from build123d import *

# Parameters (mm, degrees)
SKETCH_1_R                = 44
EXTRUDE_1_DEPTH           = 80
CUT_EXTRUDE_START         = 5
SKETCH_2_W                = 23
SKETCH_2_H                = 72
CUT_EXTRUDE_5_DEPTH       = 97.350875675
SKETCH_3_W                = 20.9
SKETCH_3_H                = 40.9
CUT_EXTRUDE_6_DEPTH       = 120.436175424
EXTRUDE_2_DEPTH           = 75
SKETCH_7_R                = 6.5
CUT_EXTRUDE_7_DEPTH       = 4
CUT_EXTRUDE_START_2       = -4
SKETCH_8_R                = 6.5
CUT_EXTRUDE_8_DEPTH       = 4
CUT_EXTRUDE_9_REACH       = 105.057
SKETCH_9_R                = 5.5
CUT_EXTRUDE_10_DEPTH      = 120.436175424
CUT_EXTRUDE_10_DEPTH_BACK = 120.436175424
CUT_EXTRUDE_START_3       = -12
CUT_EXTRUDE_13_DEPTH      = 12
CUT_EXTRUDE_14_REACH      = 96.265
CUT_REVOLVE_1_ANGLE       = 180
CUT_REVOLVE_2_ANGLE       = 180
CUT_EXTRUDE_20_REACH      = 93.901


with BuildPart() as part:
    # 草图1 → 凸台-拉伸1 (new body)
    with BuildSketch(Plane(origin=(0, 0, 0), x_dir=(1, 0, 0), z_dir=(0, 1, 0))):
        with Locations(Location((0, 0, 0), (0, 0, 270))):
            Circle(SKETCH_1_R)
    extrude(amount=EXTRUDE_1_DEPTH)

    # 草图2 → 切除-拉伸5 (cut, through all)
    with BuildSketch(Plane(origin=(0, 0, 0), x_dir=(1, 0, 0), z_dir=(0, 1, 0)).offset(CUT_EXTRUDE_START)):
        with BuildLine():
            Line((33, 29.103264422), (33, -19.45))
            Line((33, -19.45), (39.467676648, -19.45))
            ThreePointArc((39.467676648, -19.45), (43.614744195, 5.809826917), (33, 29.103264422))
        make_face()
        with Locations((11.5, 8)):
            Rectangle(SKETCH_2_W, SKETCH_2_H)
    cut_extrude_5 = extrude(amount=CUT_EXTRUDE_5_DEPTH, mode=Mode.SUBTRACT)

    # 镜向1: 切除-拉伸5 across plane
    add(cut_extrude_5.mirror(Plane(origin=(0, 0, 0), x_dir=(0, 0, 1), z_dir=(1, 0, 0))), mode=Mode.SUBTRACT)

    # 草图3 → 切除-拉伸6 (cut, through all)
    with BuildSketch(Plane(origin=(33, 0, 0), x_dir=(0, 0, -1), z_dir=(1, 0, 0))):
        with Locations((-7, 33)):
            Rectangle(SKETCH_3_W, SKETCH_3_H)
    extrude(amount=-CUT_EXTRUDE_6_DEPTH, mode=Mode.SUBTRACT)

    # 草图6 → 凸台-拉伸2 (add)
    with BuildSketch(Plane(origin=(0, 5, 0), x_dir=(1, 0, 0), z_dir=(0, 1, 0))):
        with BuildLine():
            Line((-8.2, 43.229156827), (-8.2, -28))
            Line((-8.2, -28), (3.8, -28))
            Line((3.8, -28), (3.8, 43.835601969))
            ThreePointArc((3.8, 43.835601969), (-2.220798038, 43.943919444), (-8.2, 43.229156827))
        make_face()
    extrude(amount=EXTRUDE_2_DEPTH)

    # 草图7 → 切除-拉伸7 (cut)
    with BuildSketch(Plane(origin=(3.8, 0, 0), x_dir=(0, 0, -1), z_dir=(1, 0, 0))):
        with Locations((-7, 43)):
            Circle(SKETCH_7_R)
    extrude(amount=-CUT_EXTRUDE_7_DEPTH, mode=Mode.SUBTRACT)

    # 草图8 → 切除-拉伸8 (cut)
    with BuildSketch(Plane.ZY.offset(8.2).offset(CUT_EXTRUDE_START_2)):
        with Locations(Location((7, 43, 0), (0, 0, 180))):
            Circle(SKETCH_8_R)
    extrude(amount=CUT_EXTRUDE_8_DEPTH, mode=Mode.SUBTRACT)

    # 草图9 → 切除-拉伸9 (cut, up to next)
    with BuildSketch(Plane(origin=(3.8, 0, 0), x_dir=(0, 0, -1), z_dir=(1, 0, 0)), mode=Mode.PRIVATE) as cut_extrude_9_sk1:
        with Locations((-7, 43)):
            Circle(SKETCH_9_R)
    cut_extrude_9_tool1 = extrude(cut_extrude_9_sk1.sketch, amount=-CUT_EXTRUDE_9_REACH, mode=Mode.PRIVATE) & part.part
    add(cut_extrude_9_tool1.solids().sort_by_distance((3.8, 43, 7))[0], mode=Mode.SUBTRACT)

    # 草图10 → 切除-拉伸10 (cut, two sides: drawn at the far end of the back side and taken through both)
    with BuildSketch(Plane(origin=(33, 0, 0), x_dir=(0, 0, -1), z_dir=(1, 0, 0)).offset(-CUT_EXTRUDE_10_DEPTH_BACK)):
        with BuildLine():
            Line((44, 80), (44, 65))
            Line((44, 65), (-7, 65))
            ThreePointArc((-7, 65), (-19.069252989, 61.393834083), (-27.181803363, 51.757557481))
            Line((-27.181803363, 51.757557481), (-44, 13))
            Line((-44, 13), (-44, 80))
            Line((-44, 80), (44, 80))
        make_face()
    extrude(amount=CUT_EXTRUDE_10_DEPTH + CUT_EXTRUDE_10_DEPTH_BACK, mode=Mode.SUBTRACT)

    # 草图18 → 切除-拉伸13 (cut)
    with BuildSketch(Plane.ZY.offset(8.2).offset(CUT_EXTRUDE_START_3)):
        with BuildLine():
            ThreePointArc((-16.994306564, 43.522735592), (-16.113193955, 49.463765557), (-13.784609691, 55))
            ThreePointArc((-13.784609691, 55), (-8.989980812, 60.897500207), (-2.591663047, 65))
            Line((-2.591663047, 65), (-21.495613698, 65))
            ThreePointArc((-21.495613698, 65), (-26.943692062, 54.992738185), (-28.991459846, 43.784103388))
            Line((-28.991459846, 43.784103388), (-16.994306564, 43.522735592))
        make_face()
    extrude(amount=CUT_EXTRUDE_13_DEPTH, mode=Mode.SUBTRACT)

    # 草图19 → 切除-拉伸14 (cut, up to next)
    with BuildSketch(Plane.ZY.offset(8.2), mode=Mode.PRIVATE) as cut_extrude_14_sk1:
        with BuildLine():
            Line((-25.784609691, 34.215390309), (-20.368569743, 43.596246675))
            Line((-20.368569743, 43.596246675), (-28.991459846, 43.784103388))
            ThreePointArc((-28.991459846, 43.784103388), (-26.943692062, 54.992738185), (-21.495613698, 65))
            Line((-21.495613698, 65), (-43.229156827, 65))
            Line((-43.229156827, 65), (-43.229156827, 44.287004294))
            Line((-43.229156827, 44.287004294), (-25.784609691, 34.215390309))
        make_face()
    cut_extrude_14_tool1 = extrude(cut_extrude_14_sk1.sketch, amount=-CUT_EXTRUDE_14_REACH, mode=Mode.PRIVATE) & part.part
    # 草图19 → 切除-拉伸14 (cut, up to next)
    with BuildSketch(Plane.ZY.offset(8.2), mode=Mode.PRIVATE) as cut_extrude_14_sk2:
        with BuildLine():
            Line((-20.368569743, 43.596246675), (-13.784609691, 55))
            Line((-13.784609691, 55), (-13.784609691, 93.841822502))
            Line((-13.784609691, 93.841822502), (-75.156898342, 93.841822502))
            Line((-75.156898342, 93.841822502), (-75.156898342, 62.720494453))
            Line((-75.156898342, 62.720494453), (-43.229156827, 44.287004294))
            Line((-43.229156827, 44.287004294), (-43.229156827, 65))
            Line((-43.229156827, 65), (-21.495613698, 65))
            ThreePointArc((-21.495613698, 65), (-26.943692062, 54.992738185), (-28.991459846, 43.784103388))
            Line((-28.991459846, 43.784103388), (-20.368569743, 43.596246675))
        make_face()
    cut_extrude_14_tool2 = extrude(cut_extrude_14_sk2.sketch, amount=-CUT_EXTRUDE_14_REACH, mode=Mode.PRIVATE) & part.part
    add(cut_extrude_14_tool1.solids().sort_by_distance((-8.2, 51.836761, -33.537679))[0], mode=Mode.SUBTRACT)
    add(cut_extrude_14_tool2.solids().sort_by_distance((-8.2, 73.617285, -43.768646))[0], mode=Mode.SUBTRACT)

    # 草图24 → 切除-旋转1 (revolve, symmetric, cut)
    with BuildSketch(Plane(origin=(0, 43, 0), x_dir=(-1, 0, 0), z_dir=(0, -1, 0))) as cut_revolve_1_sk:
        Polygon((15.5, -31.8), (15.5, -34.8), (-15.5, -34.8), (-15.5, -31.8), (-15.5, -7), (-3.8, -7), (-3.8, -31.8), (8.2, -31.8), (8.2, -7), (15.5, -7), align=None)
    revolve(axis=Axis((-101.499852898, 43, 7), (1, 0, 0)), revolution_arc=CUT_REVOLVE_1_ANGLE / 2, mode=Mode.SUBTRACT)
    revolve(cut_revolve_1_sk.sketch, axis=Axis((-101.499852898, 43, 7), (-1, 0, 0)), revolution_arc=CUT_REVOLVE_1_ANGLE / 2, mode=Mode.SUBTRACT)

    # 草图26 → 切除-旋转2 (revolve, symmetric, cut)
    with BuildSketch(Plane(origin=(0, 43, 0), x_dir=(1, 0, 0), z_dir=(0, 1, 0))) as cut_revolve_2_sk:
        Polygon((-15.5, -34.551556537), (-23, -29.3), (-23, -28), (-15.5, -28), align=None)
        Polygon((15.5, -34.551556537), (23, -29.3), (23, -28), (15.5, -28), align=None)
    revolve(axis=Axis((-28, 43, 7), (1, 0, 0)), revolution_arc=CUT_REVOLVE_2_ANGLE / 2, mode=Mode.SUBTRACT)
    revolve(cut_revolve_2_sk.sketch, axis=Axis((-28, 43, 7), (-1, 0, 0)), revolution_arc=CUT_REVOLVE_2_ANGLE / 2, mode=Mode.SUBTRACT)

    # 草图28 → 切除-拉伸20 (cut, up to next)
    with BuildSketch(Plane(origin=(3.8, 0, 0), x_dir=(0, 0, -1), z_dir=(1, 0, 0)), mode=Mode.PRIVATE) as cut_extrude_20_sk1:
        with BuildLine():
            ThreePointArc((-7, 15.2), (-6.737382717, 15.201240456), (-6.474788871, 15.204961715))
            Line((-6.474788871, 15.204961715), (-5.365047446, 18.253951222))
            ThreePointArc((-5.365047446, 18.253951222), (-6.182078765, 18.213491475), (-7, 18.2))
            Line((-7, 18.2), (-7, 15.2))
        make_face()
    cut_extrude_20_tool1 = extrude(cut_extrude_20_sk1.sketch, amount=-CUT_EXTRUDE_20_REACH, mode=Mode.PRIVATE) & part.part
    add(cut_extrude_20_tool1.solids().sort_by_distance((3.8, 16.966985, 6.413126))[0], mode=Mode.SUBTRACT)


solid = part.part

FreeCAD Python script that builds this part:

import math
import FreeCAD as App
import Part
import Sketcher
Q = App.Units.Quantity

doc = App.newDocument("Part")
body = doc.addObject("PartDesign::Body", "Body")

# Sketch on XZ plane
sketch1 = body.newObject("Sketcher::SketchObject", "Sketch")
sketch1.AttachmentSupport = (doc.getObject("XZ_Plane"), [""])
sketch1.MapMode = "FlatFace"
sketch1.addGeometry(Part.Circle(App.Vector(0, 0, 0), App.Vector(0, 0, 1), 44), False)
sketch1.addConstraint([
    Sketcher.Constraint("Coincident", 0, 3, -1, 1),
    Sketcher.Constraint("Diameter", 0, 88.0),
])
pad1 = body.newObject("PartDesign::Pad", "Pad")
pad1.Profile = sketch1
pad1.Length = 80
pad1.Reversed = True

# Sketch on XZ plane
sketch2 = body.newObject("Sketcher::SketchObject", "Sketch001")
sketch2.AttachmentSupport = (doc.getObject("XZ_Plane"), [""])
sketch2.MapMode = "FlatFace"
sketch2.AttachmentOffset = App.Placement(App.Vector(0, 0, -5), App.Rotation())
sketch2.addGeometry([
    Part.LineSegment(App.Vector(33, -29.103264, 0), App.Vector(33, 19.45, 0)),  # 0
    Part.LineSegment(App.Vector(33, 19.45, 0), App.Vector(39.467677, 19.45, 0)),  # 1
    Part.ArcOfCircle(Part.Circle(App.Vector(0, 0, 0), App.Vector(0, 0, 1), 44), math.radians(-41.409622), math.radians(26.234462)),  # 2
    Part.LineSegment(App.Vector(0, -44, 0), App.Vector(0, 28, 0)),  # 3
    Part.LineSegment(App.Vector(0, 28, 0), App.Vector(23, 28, 0)),  # 4
    Part.LineSegment(App.Vector(23, 28, 0), App.Vector(23, -44, 0)),  # 5
    Part.LineSegment(App.Vector(23, -44, 0), App.Vector(0, -44, 0)),  # 6
], False)
sketch2.addConstraint([
    Sketcher.Constraint("Coincident", 0, 2, 1, 1),
    Sketcher.Constraint("Coincident", 1, 2, 2, 2),
    Sketcher.Constraint("Coincident", 2, 1, 0, 1),
    Sketcher.Constraint("Coincident", 3, 2, 4, 1),
    Sketcher.Constraint("Coincident", 4, 2, 5, 1),
    Sketcher.Constraint("Coincident", 5, 2, 6, 1),
    Sketcher.Constraint("Coincident", 6, 2, 3, 1),
    Sketcher.Constraint("Vertical", 0),
    Sketcher.Constraint("Horizontal", 1),
    Sketcher.Constraint("Vertical", 3),
    Sketcher.Constraint("Horizontal", 4),
    Sketcher.Constraint("Vertical", 5),
    Sketcher.Constraint("Horizontal", 6),
    Sketcher.Constraint("Coincident", 2, 3, -1, 1),
    Sketcher.Constraint("PointOnObject", 3, 2, -2),
    Sketcher.Constraint("Radius", 2, 44.0),
    Sketcher.Constraint("DistanceX", 4, 1, 4, 2, 23.0),
    Sketcher.Constraint("DistanceY", 3, 1, 3, 2, 72.0),
    Sketcher.Constraint("DistanceX", -1, 1, 0, 2, 33.0),
    Sketcher.Constraint("DistanceY", -1, 1, 3, 2, 28.0),
    Sketcher.Constraint("DistanceY", -1, 1, 0, 2, 19.45),
])
pocket1 = body.newObject("PartDesign::Pocket", "Pocket")
pocket1.Profile = sketch2
pocket1.Type = "ThroughAll"
doc.recompute()

mirrored = body.newObject("PartDesign::Mirrored", "Mirrored")
mirrored.Originals = [pocket1]
mirrored.MirrorPlane = (doc.getObject("YZ_Plane"), [""])
body.Tip = mirrored

# Sketch on YZ plane
sketch3 = body.newObject("Sketcher::SketchObject", "Sketch002")
sketch3.AttachmentSupport = (doc.getObject("YZ_Plane"), [""])
sketch3.MapMode = "FlatFace"
sketch3.AttachmentOffset = App.Placement(App.Vector(0, 0, 33), App.Rotation())
sketch3.addGeometry([
    Part.LineSegment(App.Vector(53.45, 17.45, 0), App.Vector(12.55, 17.45, 0)),
    Part.LineSegment(App.Vector(12.55, 17.45, 0), App.Vector(12.55, -3.45, 0)),
    Part.LineSegment(App.Vector(12.55, -3.45, 0), App.Vector(53.45, -3.45, 0)),
    Part.LineSegment(App.Vector(53.45, -3.45, 0), App.Vector(53.45, 17.45, 0)),
], False)
sketch3.addConstraint([
    Sketcher.Constraint("Coincident", 0, 2, 1, 1),
    Sketcher.Constraint("Coincident", 1, 2, 2, 1),
    Sketcher.Constraint("Coincident", 2, 2, 3, 1),
    Sketcher.Constraint("Coincident", 3, 2, 0, 1),
    Sketcher.Constraint("Horizontal", 0),
    Sketcher.Constraint("Vertical", 1),
    Sketcher.Constraint("Horizontal", 2),
    Sketcher.Constraint("Vertical", 3),
    Sketcher.Constraint("DistanceX", 0, 2, 0, 1, 40.9),
    Sketcher.Constraint("DistanceY", 1, 2, 1, 1, 20.9),
    Sketcher.Constraint("DistanceX", -1, 1, 0, 2, 12.55),
    Sketcher.Constraint("DistanceY", -1, 1, 0, 2, 17.45),
])
pocket2 = body.newObject("PartDesign::Pocket", "Pocket001")
pocket2.Profile = sketch3
pocket2.Type = "ThroughAll"

# Sketch on XZ plane
sketch4 = body.newObject("Sketcher::SketchObject", "Sketch003")
sketch4.AttachmentSupport = (doc.getObject("XZ_Plane"), [""])
sketch4.MapMode = "FlatFace"
sketch4.AttachmentOffset = App.Placement(App.Vector(0, 0, -5), App.Rotation())
sketch4.addGeometry([
    Part.LineSegment(App.Vector(-8.2, -43.229157, 0), App.Vector(-8.2, 28, 0)),
    Part.LineSegment(App.Vector(-8.2, 28, 0), App.Vector(3.8, 28, 0)),
    Part.LineSegment(App.Vector(3.8, 28, 0), App.Vector(3.8, -43.835602, 0)),
    Part.ArcOfCircle(Part.Circle(App.Vector(0, 0, 0), App.Vector(0, 0, 1), 44), math.radians(-100.740646), math.radians(-85.045556)),
], False)
sketch4.addConstraint([
    Sketcher.Constraint("Coincident", 0, 2, 1, 1),
    Sketcher.Constraint("Coincident", 1, 2, 2, 1),
    Sketcher.Constraint("Coincident", 2, 2, 3, 2),
    Sketcher.Constraint("Coincident", 3, 1, 0, 1),
    Sketcher.Constraint("Vertical", 0),
    Sketcher.Constraint("Horizontal", 1),
    Sketcher.Constraint("Vertical", 2),
    Sketcher.Constraint("Coincident", 3, 3, -1, 1),
    Sketcher.Constraint("Radius", 3, 44.0),
    Sketcher.Constraint("DistanceX", 1, 1, 1, 2, 12.0),
    Sketcher.Constraint("DistanceY", -1, 1, 0, 2, 28.0),
    Sketcher.Constraint("DistanceX", 0, 2, -1, 1, 8.2),
])
pad2 = body.newObject("PartDesign::Pad", "Pad001")
pad2.Profile = sketch4
pad2.Length = 75
pad2.Reversed = True

# Sketch on YZ plane
sketch5 = body.newObject("Sketcher::SketchObject", "Sketch004")
sketch5.AttachmentSupport = (doc.getObject("YZ_Plane"), [""])
sketch5.MapMode = "FlatFace"
sketch5.AttachmentOffset = App.Placement(App.Vector(0, 0, 3.8), App.Rotation())
sketch5.addGeometry(Part.Circle(App.Vector(43, 7, 0), App.Vector(0, 0, 1), 6.5), False)
sketch5.addConstraint([
    Sketcher.Constraint("Diameter", 0, 13.0),
    Sketcher.Constraint("DistanceX", -1, 1, 0, 3, 43.0),
    Sketcher.Constraint("DistanceY", -1, 1, 0, 3, 7.0),
])
pocket3 = body.newObject("PartDesign::Pocket", "Pocket002")
pocket3.Profile = sketch5
pocket3.Length = 4

# Sketch on YZ plane
sketch6 = body.newObject("Sketcher::SketchObject", "Sketch005")
sketch6.AttachmentSupport = (doc.getObject("YZ_Plane"), [""])
sketch6.MapMode = "FlatFace"
sketch6.AttachmentOffset = App.Placement(App.Vector(0, 0, -4.2), App.Rotation())
sketch6.addGeometry(Part.Circle(App.Vector(43, 7, 0), App.Vector(0, 0, 1), 6.5), False)
sketch6.addConstraint([
    Sketcher.Constraint("Diameter", 0, 13.0),
    Sketcher.Constraint("DistanceX", -1, 1, 0, 3, 43.0),
    Sketcher.Constraint("DistanceY", -1, 1, 0, 3, 7.0),
])
pocket4 = body.newObject("PartDesign::Pocket", "Pocket003")
pocket4.Profile = sketch6
pocket4.Length = 4

# Sketch on YZ plane
sketch7 = body.newObject("Sketcher::SketchObject", "Sketch006")
sketch7.AttachmentSupport = (doc.getObject("YZ_Plane"), [""])
sketch7.MapMode = "FlatFace"
sketch7.AttachmentOffset = App.Placement(App.Vector(0, 0, 3.8), App.Rotation())
sketch7.addGeometry(Part.Circle(App.Vector(43, 7, 0), App.Vector(0, 0, 1), 5.5), False)
sketch7.addConstraint([
    Sketcher.Constraint("Diameter", 0, 11.0),
    Sketcher.Constraint("DistanceX", -1, 1, 0, 3, 43.0),
    Sketcher.Constraint("DistanceY", -1, 1, 0, 3, 7.0),
])
pocket5 = body.newObject("PartDesign::Pocket", "Pocket004")
pocket5.Profile = sketch7
pocket5.Length = 8

# Sketch on YZ plane
sketch8 = body.newObject("Sketcher::SketchObject", "Sketch007")
sketch8.AttachmentSupport = (doc.getObject("YZ_Plane"), [""])
sketch8.MapMode = "FlatFace"
sketch8.AttachmentOffset = App.Placement(App.Vector(0, 0, 33), App.Rotation())
sketch8.addGeometry([
    Part.LineSegment(App.Vector(65, -44, 0), App.Vector(80, -44, 0)),  # 0
    Part.LineSegment(App.Vector(80, -44, 0), App.Vector(80, 44, 0)),  # 1
    Part.LineSegment(App.Vector(80, 44, 0), App.Vector(13, 44, 0)),  # 2
    Part.LineSegment(App.Vector(13, 44, 0), App.Vector(51.757557, 27.181803, 0)),  # 3
    Part.ArcOfCircle(Part.Circle(App.Vector(43, 7, 0), App.Vector(0, 0, 1), 22), math.radians(0), math.radians(66.54237)),  # 4
    Part.LineSegment(App.Vector(65, 7, 0), App.Vector(65, -44, 0)),  # 5
], False)
sketch8.addConstraint([
    Sketcher.Constraint("Coincident", 0, 2, 1, 1),
    Sketcher.Constraint("Coincident", 1, 2, 2, 1),
    Sketcher.Constraint("Coincident", 2, 2, 3, 1),
    Sketcher.Constraint("Tangent", 3, 2, 4, 2),
    Sketcher.Constraint("Tangent", 4, 1, 5, 1),
    Sketcher.Constraint("Coincident", 5, 2, 0, 1),
    Sketcher.Constraint("Horizontal", 0),
    Sketcher.Constraint("Vertical", 1),
    Sketcher.Constraint("Horizontal", 2),
    Sketcher.Constraint("Vertical", 5),
    Sketcher.Constraint("Radius", 4, 22.0),
    Sketcher.Constraint("DistanceX", 0, 1, 0, 2, 15.0),
    Sketcher.Constraint("DistanceX", 2, 2, 2, 1, 67.0),
    Sketcher.Constraint("DistanceY", 1, 1, 1, 2, 88.0),
    Sketcher.Constraint("DistanceY", 5, 2, 5, 1, 51.0),
    Sketcher.Constraint("DistanceX", -1, 1, 4, 3, 43.0),
    Sketcher.Constraint("DistanceY", -1, 1, 4, 3, 7.0),
])
pocket6 = body.newObject("PartDesign::Pocket", "Pocket005")
pocket6.Profile = sketch8
pocket6.Type = "ThroughAll"
pocket6.Midplane = True

# Sketch on YZ plane
sketch9 = body.newObject("Sketcher::SketchObject", "Sketch008")
sketch9.AttachmentSupport = (doc.getObject("YZ_Plane"), [""])
sketch9.MapMode = "FlatFace"
sketch9.AttachmentOffset = App.Placement(App.Vector(0, 0, 3.8), App.Rotation())
sketch9.addGeometry([
    Part.ArcOfCircle(Part.Circle(App.Vector(43, 7, 0), App.Vector(0, 0, 1), 24), math.radians(-88.751962), math.radians(-60)),  # 0
    Part.ArcOfCircle(Part.Circle(App.Vector(43, 7, 0), App.Vector(0, 0, 1), 24), math.radians(-60), math.radians(-23.556464)),  # 1
    Part.LineSegment(App.Vector(65, -2.591663, 0), App.Vector(65, -21.495614, 0)),  # 2
    Part.ArcOfCircle(Part.Circle(App.Vector(43, 7, 0), App.Vector(0, 0, 1), 36), math.radians(-88.751962), math.radians(-52.330113)),  # 3
    Part.LineSegment(App.Vector(43.784103, -28.99146, 0), App.Vector(43.522736, -16.994307, 0)),  # 4
], False)
sketch9.addConstraint([
    Sketcher.Constraint("Tangent", 0, 2, 1, 1),
    Sketcher.Constraint("Coincident", 1, 2, 2, 1),
    Sketcher.Constraint("Coincident", 2, 2, 3, 2),
    Sketcher.Constraint("Coincident", 3, 1, 4, 1),
    Sketcher.Constraint("Coincident", 4, 2, 0, 1),
    Sketcher.Constraint("Vertical", 2),
    Sketcher.Constraint("Coincident", 3, 3, 0, 3),
    Sketcher.Constraint("Equal", 0, 1),
    Sketcher.Constraint("Radius", 0, 24.0),
    Sketcher.Constraint("Radius", 3, 36.0),
    Sketcher.Constraint("DistanceX", -1, 1, 0, 3, 43.0),
    Sketcher.Constraint("DistanceY", -1, 1, 0, 3, 7.0),
    Sketcher.Constraint("DistanceX", -1, 1, 0, 2, 55.0),
    Sketcher.Constraint("DistanceX", -1, 1, 1, 2, 65.0),
    Sketcher.Constraint("DistanceY", 3, 1, -1, 1, 28.99146),
    Sketcher.Constraint("DistanceX", -1, 1, 4, 2, 43.522736),
])
pocket7 = body.newObject("PartDesign::Pocket", "Pocket006")
pocket7.Profile = sketch9
pocket7.Length = 12

# Sketch on YZ plane
sketch10 = body.newObject("Sketcher::SketchObject", "Sketch009")
sketch10.AttachmentSupport = (doc.getObject("YZ_Plane"), [""])
sketch10.MapMode = "FlatFace"
sketch10.AttachmentOffset = App.Placement(App.Vector(0, 0, -8.2), App.Rotation())
sketch10.addGeometry([
    Part.LineSegment(App.Vector(34.21539, -25.78461, 0), App.Vector(43.596247, -20.36857, 0)),  # 0
    Part.LineSegment(App.Vector(43.596247, -20.36857, 0), App.Vector(43.784103, -28.99146, 0)),  # 1
    Part.ArcOfCircle(Part.Circle(App.Vector(43, 7, 0), App.Vector(0, 0, 1), 36), math.radians(-88.751962), math.radians(-52.330113)),  # 2
    Part.LineSegment(App.Vector(65, -21.495614, 0), App.Vector(65, -43.229157, 0)),  # 3
    Part.LineSegment(App.Vector(65, -43.229157, 0), App.Vector(44.287004, -43.229157, 0)),  # 4
    Part.LineSegment(App.Vector(44.287004, -43.229157, 0), App.Vector(34.21539, -25.78461, 0)),  # 5
], False)
sketch10.addConstraint([
    Sketcher.Constraint("Coincident", 0, 2, 1, 1),
    Sketcher.Constraint("Coincident", 1, 2, 2, 1),
    Sketcher.Constraint("Coincident", 2, 2, 3, 1),
    Sketcher.Constraint("Coincident", 3, 2, 4, 1),
    Sketcher.Constraint("Coincident", 4, 2, 5, 1),
    Sketcher.Constraint("Coincident", 5, 2, 0, 1),
    Sketcher.Constraint("Vertical", 3),
    Sketcher.Constraint("Horizontal", 4),
    Sketcher.Constraint("Perpendicular", 0, 5),
    Sketcher.Constraint("Radius", 2, 36.0),
    Sketcher.Constraint("Angle", 0, Q("30 deg")),
    Sketcher.Constraint("DistanceX", -1, 1, 2, 3, 43.0),
    Sketcher.Constraint("DistanceY", -1, 1, 2, 3, 7.0),
    Sketcher.Constraint("DistanceX", -1, 1, 2, 2, 65.0),
    Sketcher.Constraint("DistanceX", 1, 2, 4, 2, 0.502901),
    Sketcher.Constraint("Distance", 0, 10.83208),
    Sketcher.Constraint("DistanceX", 4, 2, 4, 1, 20.712996),
    Sketcher.Constraint("DistanceY", 3, 2, 3, 1, 21.733543),
    Sketcher.Constraint("DistanceY", 0, 2, -1, 1, 20.36857),
])
pocket8 = body.newObject("PartDesign::Pocket", "Pocket007")
pocket8.Profile = sketch10
pocket8.Type = "UpToFirst"
pocket8.Reversed = True

# Sketch on YZ plane
sketch11 = body.newObject("Sketcher::SketchObject", "Sketch010")
sketch11.AttachmentSupport = (doc.getObject("YZ_Plane"), [""])
sketch11.MapMode = "FlatFace"
sketch11.AttachmentOffset = App.Placement(App.Vector(0, 0, -8.2), App.Rotation())
sketch11.addGeometry([
    Part.LineSegment(App.Vector(43.596247, -20.36857, 0), App.Vector(55, -13.78461, 0)),  # 0
    Part.LineSegment(App.Vector(55, -13.78461, 0), App.Vector(93.841823, -13.78461, 0)),  # 1
    Part.LineSegment(App.Vector(93.841823, -13.78461, 0), App.Vector(93.841823, -75.156898, 0)),  # 2
    Part.LineSegment(App.Vector(93.841823, -75.156898, 0), App.Vector(62.720494, -75.156898, 0)),  # 3
    Part.LineSegment(App.Vector(62.720494, -75.156898, 0), App.Vector(44.287004, -43.229157, 0)),  # 4
    Part.LineSegment(App.Vector(44.287004, -43.229157, 0), App.Vector(65, -43.229157, 0)),  # 5
    Part.LineSegment(App.Vector(65, -43.229157, 0), App.Vector(65, -21.495614, 0)),  # 6
    Part.ArcOfCircle(Part.Circle(App.Vector(43, 7, 0), App.Vector(0, 0, 1), 36), math.radians(-88.751962), math.radians(-52.330113)),  # 7
    Part.LineSegment(App.Vector(43.784103, -28.99146, 0), App.Vector(43.596247, -20.36857, 0)),  # 8
], False)
sketch11.addConstraint([
    Sketcher.Constraint("Coincident", 0, 2, 1, 1),
    Sketcher.Constraint("Coincident", 1, 2, 2, 1),
    Sketcher.Constraint("Coincident", 2, 2, 3, 1),
    Sketcher.Constraint("Coincident", 3, 2, 4, 1),
    Sketcher.Constraint("Coincident", 4, 2, 5, 1),
    Sketcher.Constraint("Coincident", 5, 2, 6, 1),
    Sketcher.Constraint("Coincident", 6, 2, 7, 2),
    Sketcher.Constraint("Coincident", 7, 1, 8, 1),
    Sketcher.Constraint("Coincident", 8, 2, 0, 1),
    Sketcher.Constraint("Horizontal", 1),
    Sketcher.Constraint("Vertical", 2),
    Sketcher.Constraint("Horizontal", 3),
    Sketcher.Constraint("Horizontal", 5),
    Sketcher.Constraint("Vertical", 6),
    Sketcher.Constraint("Perpendicular", 0, 4),
    Sketcher.Constraint("Radius", 7, 36.0),
    Sketcher.Constraint("Angle", 0, Q("30 deg")),
    Sketcher.Constraint("DistanceX", -1, 1, 7, 3, 43.0),
    Sketcher.Constraint("DistanceY", -1, 1, 7, 3, 7.0),
    Sketcher.Constraint("DistanceX", -1, 1, 0, 2, 55.0),
    Sketcher.Constraint("DistanceX", -1, 1, 5, 2, 65.0),
    Sketcher.Constraint("DistanceX", 3, 2, 3, 1, 31.121328),
    Sketcher.Constraint("DistanceY", 2, 2, 2, 1, 61.372289),
    Sketcher.Constraint("DistanceY", 2, 2, -1, 1, 75.156898),
    Sketcher.Constraint("DistanceX", 7, 1, 4, 2, 0.502901),
    Sketcher.Constraint("Distance", 0, 13.16792),
    Sketcher.Constraint("Distance", 4, 36.86698),
    Sketcher.Constraint("DistanceX", 1, 1, 1, 2, 38.841823),
])
pocket9 = body.newObject("PartDesign::Pocket", "Pocket008")
pocket9.Profile = sketch11
pocket9.Length = 12
pocket9.Reversed = True

# Sketch on XZ plane
sketch12 = body.newObject("Sketcher::SketchObject", "Sketch011")
sketch12.AttachmentSupport = (doc.getObject("XZ_Plane"), [""])
sketch12.MapMode = "FlatFace"
sketch12.AttachmentOffset = App.Placement(App.Vector(0, 0, -43), App.Rotation())
sketch12.addGeometry([
    Part.LineSegment(App.Vector(-15.5, 34.8, 0), App.Vector(-15.5, 7, 0)),  # 0
    Part.LineSegment(App.Vector(-15.5, 7, 0), App.Vector(-8.2, 7, 0)),  # 1
    Part.LineSegment(App.Vector(-8.2, 7, 0), App.Vector(-8.2, 31.8, 0)),  # 2
    Part.LineSegment(App.Vector(-8.2, 31.8, 0), App.Vector(3.8, 31.8, 0)),  # 3
    Part.LineSegment(App.Vector(3.8, 31.8, 0), App.Vector(3.8, 7, 0)),  # 4
    Part.LineSegment(App.Vector(3.8, 7, 0), App.Vector(15.5, 7, 0)),  # 5
    Part.LineSegment(App.Vector(15.5, 7, 0), App.Vector(15.5, 34.8, 0)),  # 6
    Part.LineSegment(App.Vector(15.5, 34.8, 0), App.Vector(-15.5, 34.8, 0)),  # 7
], False)
sketch12.addGeometry(Part.LineSegment(App.Vector(-15.5, 7, 0), App.Vector(15.5, 7, 0)), True)  # axis
sketch12.addConstraint([
    Sketcher.Constraint("Coincident", 0, 2, 1, 1),
    Sketcher.Constraint("Coincident", 1, 2, 2, 1),
    Sketcher.Constraint("Coincident", 2, 2, 3, 1),
    Sketcher.Constraint("Coincident", 3, 2, 4, 1),
    Sketcher.Constraint("Coincident", 4, 2, 5, 1),
    Sketcher.Constraint("Coincident", 5, 2, 6, 1),
    Sketcher.Constraint("Coincident", 6, 2, 7, 1),
    Sketcher.Constraint("Coincident", 7, 2, 0, 1),
    Sketcher.Constraint("Vertical", 0),
    Sketcher.Constraint("Horizontal", 1),
    Sketcher.Constraint("Vertical", 2),
    Sketcher.Constraint("Horizontal", 3),
    Sketcher.Constraint("Vertical", 4),
    Sketcher.Constraint("Horizontal", 5),
    Sketcher.Constraint("Vertical", 6),
    Sketcher.Constraint("Horizontal", 7),
    Sketcher.Constraint("Horizontal", 8),
    Sketcher.Constraint("Coincident", 8, 1, 0, 2),
    Sketcher.Constraint("Coincident", 8, 2, 5, 2),
    Sketcher.Constraint("DistanceX", 3, 1, 3, 2, 12.0),
    Sketcher.Constraint("DistanceX", 7, 2, 7, 1, 31.0),
    Sketcher.Constraint("DistanceX", 1, 1, 1, 2, 7.3),
    Sketcher.Constraint("DistanceY", 0, 2, 0, 1, 27.8),
    Sketcher.Constraint("DistanceY", 2, 1, 2, 2, 24.8),
    Sketcher.Constraint("DistanceY", -1, 1, 0, 2, 7.0),
    Sketcher.Constraint("DistanceX", 0, 2, -1, 1, 15.5),
])
groove = body.newObject("PartDesign::Groove", "Groove")
groove.Profile = sketch12
groove.ReferenceAxis = (sketch12, ["Axis0"])
groove.Angle = 90

# Sketch on XZ plane
sketch13 = body.newObject("Sketcher::SketchObject", "Sketch012")
sketch13.AttachmentSupport = (doc.getObject("XZ_Plane"), [""])
sketch13.MapMode = "FlatFace"
sketch13.AttachmentOffset = App.Placement(App.Vector(0, 0, -43), App.Rotation())
sketch13.addGeometry([
    Part.LineSegment(App.Vector(-15.5, 34.8, 0), App.Vector(-15.5, 7, 0)),  # 0
    Part.LineSegment(App.Vector(-15.5, 7, 0), App.Vector(-8.2, 7, 0)),  # 1
    Part.LineSegment(App.Vector(-8.2, 7, 0), App.Vector(-8.2, 31.8, 0)),  # 2
    Part.LineSegment(App.Vector(-8.2, 31.8, 0), App.Vector(3.8, 31.8, 0)),  # 3
    Part.LineSegment(App.Vector(3.8, 31.8, 0), App.Vector(3.8, 7, 0)),  # 4
    Part.LineSegment(App.Vector(3.8, 7, 0), App.Vector(15.5, 7, 0)),  # 5
    Part.LineSegment(App.Vector(15.5, 7, 0), App.Vector(15.5, 34.8, 0)),  # 6
    Part.LineSegment(App.Vector(15.5, 34.8, 0), App.Vector(-15.5, 34.8, 0)),  # 7
], False)
sketch13.addGeometry(Part.LineSegment(App.Vector(15.5, 7, 0), App.Vector(-15.5, 7, 0)), True)  # axis
sketch13.addConstraint([
    Sketcher.Constraint("Coincident", 0, 2, 1, 1),
    Sketcher.Constraint("Coincident", 1, 2, 2, 1),
    Sketcher.Constraint("Coincident", 2, 2, 3, 1),
    Sketcher.Constraint("Coincident", 3, 2, 4, 1),
    Sketcher.Constraint("Coincident", 4, 2, 5, 1),
    Sketcher.Constraint("Coincident", 5, 2, 6, 1),
    Sketcher.Constraint("Coincident", 6, 2, 7, 1),
    Sketcher.Constraint("Coincident", 7, 2, 0, 1),
    Sketcher.Constraint("Vertical", 0),
    Sketcher.Constraint("Horizontal", 1),
    Sketcher.Constraint("Vertical", 2),
    Sketcher.Constraint("Horizontal", 3),
    Sketcher.Constraint("Vertical", 4),
    Sketcher.Constraint("Horizontal", 5),
    Sketcher.Constraint("Vertical", 6),
    Sketcher.Constraint("Horizontal", 7),
    Sketcher.Constraint("Horizontal", 8),
    Sketcher.Constraint("Coincident", 8, 1, 5, 2),
    Sketcher.Constraint("Coincident", 8, 2, 0, 2),
    Sketcher.Constraint("DistanceX", 3, 1, 3, 2, 12.0),
    Sketcher.Constraint("DistanceX", 7, 2, 7, 1, 31.0),
    Sketcher.Constraint("DistanceX", 1, 1, 1, 2, 7.3),
    Sketcher.Constraint("DistanceY", 0, 2, 0, 1, 27.8),
    Sketcher.Constraint("DistanceY", 2, 1, 2, 2, 24.8),
    Sketcher.Constraint("DistanceY", -1, 1, 0, 2, 7.0),
    Sketcher.Constraint("DistanceX", 0, 2, -1, 1, 15.5),
])
groove2 = body.newObject("PartDesign::Groove", "Groove001")
groove2.Profile = sketch13
groove2.ReferenceAxis = (sketch13, ["Axis0"])
groove2.Angle = 90

# Sketch on XZ plane
sketch14 = body.newObject("Sketcher::SketchObject", "Sketch013")
sketch14.AttachmentSupport = (doc.getObject("XZ_Plane"), [""])
sketch14.MapMode = "FlatFace"
sketch14.AttachmentOffset = App.Placement(App.Vector(0, 0, -43), App.Rotation())
sketch14.addGeometry([
    Part.LineSegment(App.Vector(-23, 29.3, 0), App.Vector(-15.5, 34.551557, 0)),  # 0
    Part.LineSegment(App.Vector(-15.5, 34.551557, 0), App.Vector(-15.5, 28, 0)),  # 1
    Part.LineSegment(App.Vector(-15.5, 28, 0), App.Vector(-23, 28, 0)),  # 2
    Part.LineSegment(App.Vector(-23, 28, 0), App.Vector(-23, 29.3, 0)),  # 3
    Part.LineSegment(App.Vector(15.5, 34.551557, 0), App.Vector(23, 29.3, 0)),  # 4
    Part.LineSegment(App.Vector(23, 29.3, 0), App.Vector(23, 28, 0)),  # 5
    Part.LineSegment(App.Vector(23, 28, 0), App.Vector(15.5, 28, 0)),  # 6
    Part.LineSegment(App.Vector(15.5, 28, 0), App.Vector(15.5, 34.551557, 0)),  # 7
], False)
sketch14.addGeometry(Part.LineSegment(App.Vector(-23, 7, 0), App.Vector(23, 7, 0)), True)  # axis
sketch14.addConstraint([
    Sketcher.Constraint("Coincident", 0, 2, 1, 1),
    Sketcher.Constraint("Coincident", 1, 2, 2, 1),
    Sketcher.Constraint("Coincident", 2, 2, 3, 1),
    Sketcher.Constraint("Coincident", 3, 2, 0, 1),
    Sketcher.Constraint("Coincident", 4, 2, 5, 1),
    Sketcher.Constraint("Coincident", 5, 2, 6, 1),
    Sketcher.Constraint("Coincident", 6, 2, 7, 1),
    Sketcher.Constraint("Coincident", 7, 2, 4, 1),
    Sketcher.Constraint("Vertical", 1),
    Sketcher.Constraint("Horizontal", 2),
    Sketcher.Constraint("Vertical", 3),
    Sketcher.Constraint("Vertical", 5),
    Sketcher.Constraint("Horizontal", 6),
    Sketcher.Constraint("Vertical", 7),
    Sketcher.Constraint("Horizontal", 8),
    Sketcher.Constraint("Symmetric", 3, 2, 4, 2, -2),
    Sketcher.Constraint("Symmetric", 1, 2, 6, 2, -2),
    Sketcher.Constraint("Horizontal", 0, 2, 7, 2),
    Sketcher.Constraint("Vertical", 3, 2, 8, 1),
    Sketcher.Constraint("Vertical", 5, 2, 8, 2),
    Sketcher.Constraint("DistanceX", 8, 1, 8, 2, 46.0),
    Sketcher.Constraint("Angle", 0, Q("35 deg")),
    Sketcher.Constraint("DistanceX", 2, 2, 2, 1, 7.5),
    Sketcher.Constraint("DistanceY", 3, 1, 3, 2, 1.3),
    Sketcher.Constraint("DistanceY", -1, 1, 1, 2, 28.0),
    Sketcher.Constraint("DistanceY", -1, 1, 8, 1, 7.0),
])
groove3 = body.newObject("PartDesign::Groove", "Groove002")
groove3.Profile = sketch14
groove3.ReferenceAxis = (sketch14, ["Axis0"])
groove3.Angle = 90

# Sketch on XZ plane
sketch15 = body.newObject("Sketcher::SketchObject", "Sketch014")
sketch15.AttachmentSupport = (doc.getObject("XZ_Plane"), [""])
sketch15.MapMode = "FlatFace"
sketch15.AttachmentOffset = App.Placement(App.Vector(0, 0, -43), App.Rotation())
sketch15.addGeometry([
    Part.LineSegment(App.Vector(-23, 29.3, 0), App.Vector(-15.5, 34.551557, 0)),  # 0
    Part.LineSegment(App.Vector(-15.5, 34.551557, 0), App.Vector(-15.5, 28, 0)),  # 1
    Part.LineSegment(App.Vector(-15.5, 28, 0), App.Vector(-23, 28, 0)),  # 2
    Part.LineSegment(App.Vector(-23, 28, 0), App.Vector(-23, 29.3, 0)),  # 3
    Part.LineSegment(App.Vector(15.5, 34.551557, 0), App.Vector(23, 29.3, 0)),  # 4
    Part.LineSegment(App.Vector(23, 29.3, 0), App.Vector(23, 28, 0)),  # 5
    Part.LineSegment(App.Vector(23, 28, 0), App.Vector(15.5, 28, 0)),  # 6
    Part.LineSegment(App.Vector(15.5, 28, 0), App.Vector(15.5, 34.551557, 0)),  # 7
], False)
sketch15.addGeometry(Part.LineSegment(App.Vector(23, 7, 0), App.Vector(-23, 7, 0)), True)  # axis
sketch15.addConstraint([
    Sketcher.Constraint("Coincident", 0, 2, 1, 1),
    Sketcher.Constraint("Coincident", 1, 2, 2, 1),
    Sketcher.Constraint("Coincident", 2, 2, 3, 1),
    Sketcher.Constraint("Coincident", 3, 2, 0, 1),
    Sketcher.Constraint("Coincident", 4, 2, 5, 1),
    Sketcher.Constraint("Coincident", 5, 2, 6, 1),
    Sketcher.Constraint("Coincident", 6, 2, 7, 1),
    Sketcher.Constraint("Coincident", 7, 2, 4, 1),
    Sketcher.Constraint("Vertical", 1),
    Sketcher.Constraint("Horizontal", 2),
    Sketcher.Constraint("Vertical", 3),
    Sketcher.Constraint("Vertical", 5),
    Sketcher.Constraint("Horizontal", 6),
    Sketcher.Constraint("Vertical", 7),
    Sketcher.Constraint("Horizontal", 8),
    Sketcher.Constraint("Symmetric", 3, 2, 4, 2, -2),
    Sketcher.Constraint("Symmetric", 1, 2, 6, 2, -2),
    Sketcher.Constraint("Horizontal", 0, 2, 7, 2),
    Sketcher.Constraint("Vertical", 5, 2, 8, 1),
    Sketcher.Constraint("Vertical", 3, 2, 8, 2),
    Sketcher.Constraint("DistanceX", 8, 2, 8, 1, 46.0),
    Sketcher.Constraint("Angle", 0, Q("35 deg")),
    Sketcher.Constraint("DistanceX", 2, 2, 2, 1, 7.5),
    Sketcher.Constraint("DistanceY", 3, 1, 3, 2, 1.3),
    Sketcher.Constraint("DistanceY", -1, 1, 1, 2, 28.0),
    Sketcher.Constraint("DistanceY", -1, 1, 8, 1, 7.0),
])
groove4 = body.newObject("PartDesign::Groove", "Groove003")
groove4.Profile = sketch15
groove4.ReferenceAxis = (sketch15, ["Axis0"])
groove4.Angle = 90

# Sketch on YZ plane
sketch16 = body.newObject("Sketcher::SketchObject", "Sketch015")
sketch16.AttachmentSupport = (doc.getObject("YZ_Plane"), [""])
sketch16.MapMode = "FlatFace"
sketch16.AttachmentOffset = App.Placement(App.Vector(0, 0, 3.8), App.Rotation())
sketch16.addGeometry([
    Part.ArcOfCircle(Part.Circle(App.Vector(42.99999, 7, 0), App.Vector(0, 0, 1), 27.79999), math.radians(180), math.radians(181.082524)),
    Part.LineSegment(App.Vector(15.204962, 6.474789, 0), App.Vector(18.253951, 5.365047, 0)),
    Part.ArcOfCircle(Part.Circle(App.Vector(42.999999, 7, 0), App.Vector(0, 0, 1), 24.799999), math.radians(180), math.radians(183.779995)),
    Part.LineSegment(App.Vector(18.2, 7, 0), App.Vector(15.2, 7, 0)),
], False)
sketch16.addConstraint([
    Sketcher.Constraint("Coincident", 0, 2, 1, 1),
    Sketcher.Constraint("Coincident", 1, 2, 2, 2),
    Sketcher.Constraint("Coincident", 2, 1, 3, 1),
    Sketcher.Constraint("Coincident", 3, 2, 0, 1),
    Sketcher.Constraint("Horizontal", 3),
    Sketcher.Constraint("Coincident", 2, 3, 0, 3),
    Sketcher.Constraint("Horizontal", 0, 3, 2, 1),
    Sketcher.Constraint("Radius", 2, 24.799999),
    Sketcher.Constraint("DistanceX", 3, 2, 3, 1, 3.0),
    Sketcher.Constraint("Angle", 1, Q("-20 deg")),
    Sketcher.Constraint("DistanceY", -1, 1, 0, 3, 7.0),
    Sketcher.Constraint("DistanceX", -1, 1, 2, 3, 42.999999),
    Sketcher.Constraint("DistanceX", -1, 1, 0, 2, 15.204962),
])
pocket10 = body.newObject("PartDesign::Pocket", "Pocket009")
pocket10.Profile = sketch16
pocket10.Type = "UpToFirst"

doc.recompute()
